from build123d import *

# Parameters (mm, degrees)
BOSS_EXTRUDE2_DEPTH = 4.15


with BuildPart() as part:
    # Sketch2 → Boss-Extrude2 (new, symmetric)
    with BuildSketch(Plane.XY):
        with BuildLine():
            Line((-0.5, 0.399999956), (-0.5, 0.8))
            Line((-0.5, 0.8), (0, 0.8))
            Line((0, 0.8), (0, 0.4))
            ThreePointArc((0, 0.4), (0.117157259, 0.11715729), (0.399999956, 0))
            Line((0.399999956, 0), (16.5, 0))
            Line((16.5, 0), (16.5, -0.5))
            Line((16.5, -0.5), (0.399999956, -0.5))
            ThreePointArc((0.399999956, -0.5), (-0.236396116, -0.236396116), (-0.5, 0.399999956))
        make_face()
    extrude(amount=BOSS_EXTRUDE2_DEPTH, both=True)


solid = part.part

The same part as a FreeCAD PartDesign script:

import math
import FreeCAD as App
import Part
import Sketcher

doc = App.newDocument("Part")
params = doc.addObject("Spreadsheet::Sheet", "Params")
for row, (alias, value) in enumerate([
    ("sketch1_radius", "0.9 mm"),
    ("sketch1_radius2", "0.4 mm"),
    ("sketch1_width", "16.1 mm"),
    ("sketch1_height", "0.4 mm"),
    ("pad1_length", "8.3 mm"),
], start=1):
    params.set(f"A{row}", alias)
    params.set(f"B{row}", "=" + value)
    params.setAlias(f"B{row}", alias)

body = doc.addObject("PartDesign::Body", "Body")

sketch1 = body.newObject("Sketcher::SketchObject", "Sketch")
sketch1.AttachmentSupport = (doc.getObject("XY_Plane"), [""])
sketch1.MapMode = "FlatFace"
sketch1.addGeometry(Part.LineSegment(App.Vector(-0.5, 0.8, 0), App.Vector(-0.5, 0.4, 0)), False)
sketch1.addGeometry(Part.ArcOfCircle(Part.Circle(App.Vector(0.4, 0.4, 0), App.Vector(0, 0, 1), 0.9), math.radians(180), math.radians(270)), False)
sketch1.addGeometry(Part.LineSegment(App.Vector(0.4, -0.5, 0), App.Vector(16.5, -0.5, 0)), False)
sketch1.addGeometry(Part.LineSegment(App.Vector(16.5, -0.5, 0), App.Vector(16.5, 0, 0)), False)
sketch1.addGeometry(Part.LineSegment(App.Vector(16.5, 0, 0), App.Vector(0.4, 0, 0)), False)
sketch1.addGeometry(Part.ArcOfCircle(Part.Circle(App.Vector(0.4, 0.4, 0), App.Vector(0, 0, 1), 0.4), math.radians(180), math.radians(270)), False)
sketch1.addGeometry(Part.LineSegment(App.Vector(0, 0.4, 0), App.Vector(0, 0.8, 0)), False)
sketch1.addGeometry(Part.LineSegment(App.Vector(0, 0.8, 0), App.Vector(-0.5, 0.8, 0)), False)
sketch1.addConstraint(Sketcher.Constraint("Tangent", 0, 2, 1, 1))
sketch1.addConstraint(Sketcher.Constraint("Tangent", 1, 2, 2, 1))
sketch1.addConstraint(Sketcher.Constraint("Coincident", 2, 2, 3, 1))
sketch1.addConstraint(Sketcher.Constraint("Coincident", 3, 2, 4, 1))
sketch1.addConstraint(Sketcher.Constraint("Tangent", 4, 2, 5, 2))
sketch1.addConstraint(Sketcher.Constraint("Tangent", 5, 1, 6, 1))
sketch1.addConstraint(Sketcher.Constraint("Coincident", 6, 2, 7, 1))
sketch1.addConstraint(Sketcher.Constraint("Coincident", 7, 2, 0, 1))
sketch1.addConstraint(Sketcher.Constraint("Vertical", 0))
sketch1.addConstraint(Sketcher.Constraint("Horizontal", 2))
sketch1.addConstraint(Sketcher.Constraint("Vertical", 3))
sketch1.addConstraint(Sketcher.Constraint("Horizontal", 4))
sketch1.addConstraint(Sketcher.Constraint("Vertical", 6))
sketch1.addConstraint(Sketcher.Constraint("Horizontal", 7))
sketch1.addConstraint(Sketcher.Constraint("Coincident", 5, 3, 1, 3))
sketch1.addConstraint(Sketcher.Constraint("PointOnObject", 3, 2, -1))
sketch1.addConstraint(Sketcher.Constraint("PointOnObject", 5, 1, -2))
sketch1.addConstraint(Sketcher.Constraint("Radius", 1, 0.9))
sketch1.addConstraint(Sketcher.Constraint("Radius", 5, 0.4))
sketch1.addConstraint(Sketcher.Constraint("DistanceX", 2, 1, 2, 2, 16.1))
sketch1.addConstraint(Sketcher.Constraint("DistanceY", 0, 2, 0, 1, 0.4))
sketch1.setExpression("Constraints[17]", "Params.sketch1_radius")
sketch1.setExpression("Constraints[18]", "Params.sketch1_radius2")
sketch1.setExpression("Constraints[19]", "Params.sketch1_width")
sketch1.setExpression("Constraints[20]", "Params.sketch1_height")
pad1 = body.newObject("PartDesign::Pad", "Pad")
pad1.Profile = sketch1
pad1.setExpression("Length", "Params.pad1_length")
pad1.Midplane = True

doc.recompute()
